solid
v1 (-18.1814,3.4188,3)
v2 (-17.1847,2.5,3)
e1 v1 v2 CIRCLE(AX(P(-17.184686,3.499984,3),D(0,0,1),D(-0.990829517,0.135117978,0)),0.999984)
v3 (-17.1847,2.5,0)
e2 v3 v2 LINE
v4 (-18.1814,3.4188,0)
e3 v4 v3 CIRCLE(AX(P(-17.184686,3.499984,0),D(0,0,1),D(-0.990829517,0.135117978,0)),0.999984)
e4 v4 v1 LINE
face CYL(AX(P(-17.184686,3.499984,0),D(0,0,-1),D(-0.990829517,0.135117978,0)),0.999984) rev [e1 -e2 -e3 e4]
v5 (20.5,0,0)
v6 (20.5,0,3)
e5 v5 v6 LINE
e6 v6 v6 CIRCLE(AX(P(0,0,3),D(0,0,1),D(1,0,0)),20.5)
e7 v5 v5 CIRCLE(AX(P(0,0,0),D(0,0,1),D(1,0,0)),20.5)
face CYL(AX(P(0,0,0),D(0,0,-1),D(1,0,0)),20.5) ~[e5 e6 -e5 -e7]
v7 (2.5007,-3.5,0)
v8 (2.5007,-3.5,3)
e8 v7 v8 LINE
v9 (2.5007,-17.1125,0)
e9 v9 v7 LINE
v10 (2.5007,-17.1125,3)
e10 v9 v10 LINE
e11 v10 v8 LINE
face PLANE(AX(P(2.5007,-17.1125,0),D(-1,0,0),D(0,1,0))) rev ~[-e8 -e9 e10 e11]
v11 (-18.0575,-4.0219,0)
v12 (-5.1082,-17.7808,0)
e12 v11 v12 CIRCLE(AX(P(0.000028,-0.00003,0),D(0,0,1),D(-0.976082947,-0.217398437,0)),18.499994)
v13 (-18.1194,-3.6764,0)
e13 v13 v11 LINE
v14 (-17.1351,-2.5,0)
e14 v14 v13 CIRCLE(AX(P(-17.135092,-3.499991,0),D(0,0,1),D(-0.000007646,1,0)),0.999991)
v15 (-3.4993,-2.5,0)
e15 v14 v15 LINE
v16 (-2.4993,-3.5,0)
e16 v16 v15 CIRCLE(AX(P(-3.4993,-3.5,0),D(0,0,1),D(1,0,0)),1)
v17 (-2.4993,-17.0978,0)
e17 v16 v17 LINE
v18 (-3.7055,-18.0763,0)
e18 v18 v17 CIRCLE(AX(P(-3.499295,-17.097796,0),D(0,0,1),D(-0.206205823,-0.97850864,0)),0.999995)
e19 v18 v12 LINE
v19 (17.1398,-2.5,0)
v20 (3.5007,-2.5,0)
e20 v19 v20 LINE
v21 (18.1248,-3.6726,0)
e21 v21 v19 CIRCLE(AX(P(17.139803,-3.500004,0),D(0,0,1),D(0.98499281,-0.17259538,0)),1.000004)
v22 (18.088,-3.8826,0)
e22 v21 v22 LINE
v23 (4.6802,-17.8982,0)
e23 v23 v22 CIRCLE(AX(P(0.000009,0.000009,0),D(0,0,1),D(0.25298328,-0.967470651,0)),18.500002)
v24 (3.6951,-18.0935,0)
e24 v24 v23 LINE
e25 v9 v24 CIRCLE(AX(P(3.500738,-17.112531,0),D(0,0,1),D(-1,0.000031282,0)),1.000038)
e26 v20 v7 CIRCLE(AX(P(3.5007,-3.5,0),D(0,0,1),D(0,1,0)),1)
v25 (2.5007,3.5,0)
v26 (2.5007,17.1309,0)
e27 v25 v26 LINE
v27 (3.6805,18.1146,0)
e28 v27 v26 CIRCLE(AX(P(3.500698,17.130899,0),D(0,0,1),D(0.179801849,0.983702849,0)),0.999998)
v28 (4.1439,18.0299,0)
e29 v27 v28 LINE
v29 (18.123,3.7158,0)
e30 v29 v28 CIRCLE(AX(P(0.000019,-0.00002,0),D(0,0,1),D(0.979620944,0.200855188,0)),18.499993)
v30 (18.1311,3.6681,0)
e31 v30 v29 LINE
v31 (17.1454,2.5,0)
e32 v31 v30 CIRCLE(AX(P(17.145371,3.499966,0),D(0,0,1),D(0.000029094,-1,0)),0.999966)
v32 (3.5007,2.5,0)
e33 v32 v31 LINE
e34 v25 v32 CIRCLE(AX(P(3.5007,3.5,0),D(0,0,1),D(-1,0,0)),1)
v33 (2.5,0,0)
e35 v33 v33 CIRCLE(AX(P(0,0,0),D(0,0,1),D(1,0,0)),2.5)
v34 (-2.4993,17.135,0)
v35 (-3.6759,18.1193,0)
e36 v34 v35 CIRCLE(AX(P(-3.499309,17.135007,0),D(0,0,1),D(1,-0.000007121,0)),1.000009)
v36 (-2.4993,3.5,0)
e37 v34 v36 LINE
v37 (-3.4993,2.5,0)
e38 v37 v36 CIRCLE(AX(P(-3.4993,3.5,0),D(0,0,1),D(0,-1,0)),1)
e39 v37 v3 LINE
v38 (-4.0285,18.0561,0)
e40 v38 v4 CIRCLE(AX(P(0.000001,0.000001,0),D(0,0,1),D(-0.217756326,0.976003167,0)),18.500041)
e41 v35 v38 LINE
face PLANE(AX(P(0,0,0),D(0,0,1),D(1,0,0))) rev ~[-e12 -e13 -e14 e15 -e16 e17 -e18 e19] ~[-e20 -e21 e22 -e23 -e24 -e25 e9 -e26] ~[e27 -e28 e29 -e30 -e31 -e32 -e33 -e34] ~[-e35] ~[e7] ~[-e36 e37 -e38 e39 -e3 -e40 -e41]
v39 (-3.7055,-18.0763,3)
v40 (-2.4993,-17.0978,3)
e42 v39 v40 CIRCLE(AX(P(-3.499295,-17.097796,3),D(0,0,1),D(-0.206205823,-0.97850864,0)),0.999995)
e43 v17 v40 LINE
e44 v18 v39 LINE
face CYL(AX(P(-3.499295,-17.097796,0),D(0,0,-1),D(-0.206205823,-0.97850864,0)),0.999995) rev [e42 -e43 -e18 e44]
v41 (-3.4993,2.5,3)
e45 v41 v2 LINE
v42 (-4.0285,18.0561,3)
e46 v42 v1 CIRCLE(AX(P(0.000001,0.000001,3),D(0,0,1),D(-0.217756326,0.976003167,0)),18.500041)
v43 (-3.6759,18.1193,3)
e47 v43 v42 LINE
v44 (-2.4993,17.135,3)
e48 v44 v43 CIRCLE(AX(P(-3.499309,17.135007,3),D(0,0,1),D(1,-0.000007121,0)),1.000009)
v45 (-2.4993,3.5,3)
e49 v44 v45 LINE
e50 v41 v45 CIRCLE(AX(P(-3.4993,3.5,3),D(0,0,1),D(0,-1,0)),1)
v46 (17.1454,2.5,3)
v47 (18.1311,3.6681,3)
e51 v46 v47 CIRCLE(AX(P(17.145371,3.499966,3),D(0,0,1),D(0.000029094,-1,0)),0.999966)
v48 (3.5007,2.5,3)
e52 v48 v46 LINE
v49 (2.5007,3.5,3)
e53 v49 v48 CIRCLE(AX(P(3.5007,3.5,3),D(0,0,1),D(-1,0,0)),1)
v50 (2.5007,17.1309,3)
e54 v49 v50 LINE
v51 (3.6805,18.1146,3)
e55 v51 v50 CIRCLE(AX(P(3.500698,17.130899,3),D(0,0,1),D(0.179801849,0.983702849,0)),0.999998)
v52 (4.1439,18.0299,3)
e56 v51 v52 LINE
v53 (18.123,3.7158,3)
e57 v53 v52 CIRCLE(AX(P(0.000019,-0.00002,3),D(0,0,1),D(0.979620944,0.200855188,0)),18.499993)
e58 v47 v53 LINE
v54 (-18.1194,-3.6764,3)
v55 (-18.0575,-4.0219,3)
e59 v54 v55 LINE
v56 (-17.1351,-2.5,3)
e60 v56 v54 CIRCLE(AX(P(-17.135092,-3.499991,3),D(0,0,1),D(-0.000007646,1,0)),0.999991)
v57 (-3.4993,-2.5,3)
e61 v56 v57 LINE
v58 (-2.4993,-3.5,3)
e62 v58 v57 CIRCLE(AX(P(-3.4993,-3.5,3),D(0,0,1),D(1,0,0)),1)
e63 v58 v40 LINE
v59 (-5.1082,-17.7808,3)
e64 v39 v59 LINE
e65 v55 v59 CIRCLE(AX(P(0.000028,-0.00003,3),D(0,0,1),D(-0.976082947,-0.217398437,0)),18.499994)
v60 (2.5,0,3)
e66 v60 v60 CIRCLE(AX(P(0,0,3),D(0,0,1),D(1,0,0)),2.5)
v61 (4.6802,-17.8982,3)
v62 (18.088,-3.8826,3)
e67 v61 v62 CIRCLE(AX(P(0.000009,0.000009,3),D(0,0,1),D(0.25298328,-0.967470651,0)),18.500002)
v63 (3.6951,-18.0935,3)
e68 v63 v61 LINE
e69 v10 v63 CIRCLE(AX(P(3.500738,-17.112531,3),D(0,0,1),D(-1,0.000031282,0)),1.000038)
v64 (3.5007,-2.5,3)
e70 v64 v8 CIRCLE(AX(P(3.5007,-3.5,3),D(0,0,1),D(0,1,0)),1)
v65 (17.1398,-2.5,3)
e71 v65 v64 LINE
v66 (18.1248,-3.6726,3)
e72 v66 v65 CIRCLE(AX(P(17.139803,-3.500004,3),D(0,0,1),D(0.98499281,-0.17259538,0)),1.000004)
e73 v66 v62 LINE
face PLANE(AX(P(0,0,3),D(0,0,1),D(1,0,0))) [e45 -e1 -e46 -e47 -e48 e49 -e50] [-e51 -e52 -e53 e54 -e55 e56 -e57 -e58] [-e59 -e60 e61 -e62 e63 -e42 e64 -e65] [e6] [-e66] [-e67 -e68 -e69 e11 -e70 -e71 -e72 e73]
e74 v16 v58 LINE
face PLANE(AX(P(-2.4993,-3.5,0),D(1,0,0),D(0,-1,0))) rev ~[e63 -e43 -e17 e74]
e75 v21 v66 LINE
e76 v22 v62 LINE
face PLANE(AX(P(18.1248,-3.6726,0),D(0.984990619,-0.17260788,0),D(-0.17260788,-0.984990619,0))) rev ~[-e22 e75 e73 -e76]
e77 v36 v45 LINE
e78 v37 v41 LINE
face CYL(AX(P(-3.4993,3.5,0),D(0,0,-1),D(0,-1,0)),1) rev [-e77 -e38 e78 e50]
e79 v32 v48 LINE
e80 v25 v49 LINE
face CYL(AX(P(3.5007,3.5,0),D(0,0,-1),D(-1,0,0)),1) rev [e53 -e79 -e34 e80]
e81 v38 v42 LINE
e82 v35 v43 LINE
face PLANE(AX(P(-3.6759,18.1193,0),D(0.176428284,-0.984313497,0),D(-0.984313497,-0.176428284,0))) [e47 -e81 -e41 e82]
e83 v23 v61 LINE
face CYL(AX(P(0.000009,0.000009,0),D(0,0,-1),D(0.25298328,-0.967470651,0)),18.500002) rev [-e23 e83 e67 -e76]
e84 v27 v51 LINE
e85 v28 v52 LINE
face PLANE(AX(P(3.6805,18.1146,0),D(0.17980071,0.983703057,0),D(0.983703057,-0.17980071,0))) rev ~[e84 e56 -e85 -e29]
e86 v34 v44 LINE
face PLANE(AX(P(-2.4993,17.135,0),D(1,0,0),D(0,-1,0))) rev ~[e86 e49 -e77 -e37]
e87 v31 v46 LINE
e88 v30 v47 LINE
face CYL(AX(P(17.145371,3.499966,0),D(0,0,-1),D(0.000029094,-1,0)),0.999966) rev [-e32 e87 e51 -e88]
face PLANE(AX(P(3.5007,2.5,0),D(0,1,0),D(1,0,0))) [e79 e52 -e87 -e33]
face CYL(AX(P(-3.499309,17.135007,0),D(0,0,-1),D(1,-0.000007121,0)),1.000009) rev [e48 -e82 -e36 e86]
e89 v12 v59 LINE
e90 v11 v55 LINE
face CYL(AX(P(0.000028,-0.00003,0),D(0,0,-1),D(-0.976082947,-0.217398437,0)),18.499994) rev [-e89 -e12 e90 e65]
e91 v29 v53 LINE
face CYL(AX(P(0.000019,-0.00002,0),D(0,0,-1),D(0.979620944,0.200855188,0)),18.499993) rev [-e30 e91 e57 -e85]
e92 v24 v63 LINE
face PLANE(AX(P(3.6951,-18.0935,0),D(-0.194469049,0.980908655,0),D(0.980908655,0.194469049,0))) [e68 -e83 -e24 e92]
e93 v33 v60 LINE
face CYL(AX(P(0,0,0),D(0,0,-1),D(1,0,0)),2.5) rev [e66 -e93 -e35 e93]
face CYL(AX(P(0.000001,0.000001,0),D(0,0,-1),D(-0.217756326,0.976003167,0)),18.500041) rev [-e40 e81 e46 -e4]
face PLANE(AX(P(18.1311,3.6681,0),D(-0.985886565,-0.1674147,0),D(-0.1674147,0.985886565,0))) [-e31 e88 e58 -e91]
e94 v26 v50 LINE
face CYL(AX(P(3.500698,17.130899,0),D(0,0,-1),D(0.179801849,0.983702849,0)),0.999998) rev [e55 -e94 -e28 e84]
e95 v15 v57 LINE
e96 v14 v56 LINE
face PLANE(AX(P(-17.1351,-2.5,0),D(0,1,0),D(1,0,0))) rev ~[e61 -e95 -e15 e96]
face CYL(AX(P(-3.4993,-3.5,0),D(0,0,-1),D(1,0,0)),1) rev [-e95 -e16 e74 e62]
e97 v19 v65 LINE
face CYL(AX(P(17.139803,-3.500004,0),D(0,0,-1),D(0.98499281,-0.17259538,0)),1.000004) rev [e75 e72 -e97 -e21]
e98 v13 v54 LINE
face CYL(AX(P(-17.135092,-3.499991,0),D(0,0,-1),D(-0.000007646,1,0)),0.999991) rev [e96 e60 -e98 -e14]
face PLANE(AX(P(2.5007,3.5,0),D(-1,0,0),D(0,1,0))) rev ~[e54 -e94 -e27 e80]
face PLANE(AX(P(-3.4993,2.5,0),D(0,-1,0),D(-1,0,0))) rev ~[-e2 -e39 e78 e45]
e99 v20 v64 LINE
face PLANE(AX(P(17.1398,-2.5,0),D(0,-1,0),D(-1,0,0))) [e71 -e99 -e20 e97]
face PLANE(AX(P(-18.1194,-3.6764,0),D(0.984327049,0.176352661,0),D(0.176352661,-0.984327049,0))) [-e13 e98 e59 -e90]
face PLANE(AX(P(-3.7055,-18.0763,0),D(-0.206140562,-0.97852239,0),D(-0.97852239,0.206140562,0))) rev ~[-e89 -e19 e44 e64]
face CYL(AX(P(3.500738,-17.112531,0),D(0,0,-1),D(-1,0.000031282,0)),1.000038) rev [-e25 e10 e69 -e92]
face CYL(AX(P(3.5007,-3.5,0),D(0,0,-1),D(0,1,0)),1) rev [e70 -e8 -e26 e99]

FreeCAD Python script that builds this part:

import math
import FreeCAD as App
import Part
import Sketcher
from FreeCAD import Vector
Q = App.Units.Quantity

doc = App.newDocument("Part")
body = doc.addObject("PartDesign::Body", "Body")

sketch1 = body.newObject("Sketcher::SketchObject", "Sketch")
sketch1.AttachmentSupport = (doc.getObject("XY_Plane"), [""])
sketch1.MapMode = "FlatFace"
sketch1.addGeometry(Part.Circle(Vector(0, 0, 0), Vector(0, 0, 1), 20.5), False)
sketch1.addGeometry(Part.ArcOfCircle(Part.Circle(Vector(-3.4993, -3.5, 0), Vector(0, 0, 1), 1), math.radians(0), math.radians(90)), False)
sketch1.addGeometry(Part.LineSegment(Vector(-2.4993, -3.5, 0), Vector(-2.4993, -17.0978, 0)), False)
sketch1.addGeometry(Part.ArcOfCircle(Part.Circle(Vector(-3.4993, -17.0978, 0), Vector(0, 0, 1), 0.99999), math.radians(-101.899872), math.radians(0)), False)
sketch1.addGeometry(Part.LineSegment(Vector(-3.7055, -18.0763, 0), Vector(-5.1082, -17.7808, 0)), False)
sketch1.addGeometry(Part.ArcOfCircle(Part.Circle(Vector(0, 0, 0), Vector(0, 0, 1), 18.500042), math.radians(-167.443613), math.radians(-106.028692)), False)
sketch1.addGeometry(Part.LineSegment(Vector(-18.0575, -4.0219, 0), Vector(-18.1194, -3.6764, 0)), False)
sketch1.addGeometry(Part.ArcOfCircle(Part.Circle(Vector(-17.1351, -3.5, 0), Vector(0, 0, 1), 1), math.radians(90), math.radians(190.160327)), False)
sketch1.addGeometry(Part.LineSegment(Vector(-17.1351, -2.5, 0), Vector(-3.4993, -2.5, 0)), False)
sketch1.addGeometry(Part.LineSegment(Vector(3.5007, -2.5, 0), Vector(17.1398, -2.5, 0)), False)
sketch1.addGeometry(Part.ArcOfCircle(Part.Circle(Vector(17.1398, -3.5, 0), Vector(0, 0, 1), 1.000008), math.radians(-9.938944), math.radians(90)), False)
sketch1.addGeometry(Part.LineSegment(Vector(18.1248, -3.6726, 0), Vector(18.088, -3.8826, 0)), False)
sketch1.addGeometry(Part.ArcOfCircle(Part.Circle(Vector(0, 0, 0), Vector(0, 0, 1), 18.500042), math.radians(-75.345849), math.radians(-12.114744)), False)
sketch1.addGeometry(Part.LineSegment(Vector(4.6802, -17.8982, 0), Vector(3.6951, -18.0935, 0)), False)
sketch1.addGeometry(Part.ArcOfCircle(Part.Circle(Vector(3.5007, -17.1125, 0), Vector(0, 0, 1), 1), math.radians(180), math.radians(281.20881)), False)
sketch1.addGeometry(Part.LineSegment(Vector(2.5007, -17.1125, 0), Vector(2.5007, -3.5, 0)), False)
sketch1.addGeometry(Part.ArcOfCircle(Part.Circle(Vector(3.5007, -3.5, 0), Vector(0, 0, 1), 1), math.radians(90), math.radians(180)), False)
sketch1.addGeometry(Part.ArcOfCircle(Part.Circle(Vector(-3.4993, 17.135, 0), Vector(0, 0, 1), 1), math.radians(0), math.radians(100.171607)), False)
sketch1.addGeometry(Part.LineSegment(Vector(-2.4993, 17.135, 0), Vector(-2.4993, 3.5, 0)), False)
sketch1.addGeometry(Part.ArcOfCircle(Part.Circle(Vector(-3.4993, 3.5, 0), Vector(0, 0, 1), 1), math.radians(-90), math.radians(0)), False)
sketch1.addGeometry(Part.LineSegment(Vector(-3.4993, 2.5, 0), Vector(-17.1847, 2.5, 0)), False)
sketch1.addGeometry(Part.ArcOfCircle(Part.Circle(Vector(-17.1847, 3.5, 0), Vector(0, 0, 1), 0.999968), math.radians(-175.342465), math.radians(-90)), False)
sketch1.addGeometry(Part.ArcOfCircle(Part.Circle(Vector(0, 0, 0), Vector(0, 0, 1), 18.500042), math.radians(102.577281), math.radians(169.350551)), False)
sketch1.addGeometry(Part.LineSegment(Vector(-4.0285, 18.0561, 0), Vector(-3.6759, 18.1193, 0)), False)
sketch1.addGeometry(Part.Circle(Vector(0, 0, 0), Vector(0, 0, 1), 2.5), False)
sketch1.addGeometry(Part.ArcOfCircle(Part.Circle(Vector(3.5007, 3.5, 0), Vector(0, 0, 1), 1), math.radians(180), math.radians(270)), False)
sketch1.addGeometry(Part.LineSegment(Vector(2.5007, 3.5, 0), Vector(2.5007, 17.1309, 0)), False)
sketch1.addGeometry(Part.ArcOfCircle(Part.Circle(Vector(3.5007, 17.1309, 0), Vector(0, 0, 1), 0.999997), math.radians(79.641857), math.radians(180)), False)
sketch1.addGeometry(Part.LineSegment(Vector(3.6805, 18.1146, 0), Vector(4.1439, 18.0299, 0)), False)
sketch1.addGeometry(Part.ArcOfCircle(Part.Circle(Vector(0, 0, 0), Vector(0, 0, 1), 18.499973), math.radians(11.586901), math.radians(77.056221)), False)
sketch1.addGeometry(Part.LineSegment(Vector(18.123, 3.7158, 0), Vector(18.1311, 3.6681, 0)), False)
sketch1.addGeometry(Part.ArcOfCircle(Part.Circle(Vector(17.1454, 3.5, 0), Vector(0, 0, 1), 1), math.radians(-90), math.radians(9.678041)), False)
sketch1.addGeometry(Part.LineSegment(Vector(17.1454, 2.5, 0), Vector(3.5007, 2.5, 0)), False)
sketch1.addConstraint(Sketcher.Constraint("Coincident", 1, 1, 2, 1))
sketch1.addConstraint(Sketcher.Constraint("Coincident", 2, 2, 3, 2))
sketch1.addConstraint(Sketcher.Constraint("Coincident", 3, 1, 4, 1))
sketch1.addConstraint(Sketcher.Constraint("Coincident", 4, 2, 5, 2))
sketch1.addConstraint(Sketcher.Constraint("Coincident", 5, 1, 6, 1))
sketch1.addConstraint(Sketcher.Constraint("Coincident", 6, 2, 7, 2))
sketch1.addConstraint(Sketcher.Constraint("Coincident", 7, 1, 8, 1))
sketch1.addConstraint(Sketcher.Constraint("Coincident", 8, 2, 1, 2))
sketch1.addConstraint(Sketcher.Constraint("Coincident", 9, 2, 10, 2))
sketch1.addConstraint(Sketcher.Constraint("Coincident", 10, 1, 11, 1))
sketch1.addConstraint(Sketcher.Constraint("Coincident", 11, 2, 12, 2))
sketch1.addConstraint(Sketcher.Constraint("Coincident", 12, 1, 13, 1))
sketch1.addConstraint(Sketcher.Constraint("Coincident", 13, 2, 14, 2))
sketch1.addConstraint(Sketcher.Constraint("Coincident", 14, 1, 15, 1))
sketch1.addConstraint(Sketcher.Constraint("Coincident", 15, 2, 16, 2))
sketch1.addConstraint(Sketcher.Constraint("Coincident", 16, 1, 9, 1))
sketch1.addConstraint(Sketcher.Constraint("Coincident", 17, 1, 18, 1))
sketch1.addConstraint(Sketcher.Constraint("Coincident", 18, 2, 19, 2))
sketch1.addConstraint(Sketcher.Constraint("Coincident", 19, 1, 20, 1))
sketch1.addConstraint(Sketcher.Constraint("Coincident", 20, 2, 21, 2))
sketch1.addConstraint(Sketcher.Constraint("Coincident", 21, 1, 22, 2))
sketch1.addConstraint(Sketcher.Constraint("Coincident", 22, 1, 23, 1))
sketch1.addConstraint(Sketcher.Constraint("Coincident", 23, 2, 17, 2))
sketch1.addConstraint(Sketcher.Constraint("Coincident", 25, 1, 26, 1))
sketch1.addConstraint(Sketcher.Constraint("Coincident", 26, 2, 27, 2))
sketch1.addConstraint(Sketcher.Constraint("Coincident", 27, 1, 28, 1))
sketch1.addConstraint(Sketcher.Constraint("Coincident", 28, 2, 29, 2))
sketch1.addConstraint(Sketcher.Constraint("Coincident", 29, 1, 30, 1))
sketch1.addConstraint(Sketcher.Constraint("Coincident", 30, 2, 31, 2))
sketch1.addConstraint(Sketcher.Constraint("Coincident", 31, 1, 32, 1))
sketch1.addConstraint(Sketcher.Constraint("Coincident", 32, 2, 25, 2))
sketch1.addConstraint(Sketcher.Constraint("Vertical", 2))
sketch1.addConstraint(Sketcher.Constraint("Horizontal", 8))
sketch1.addConstraint(Sketcher.Constraint("Horizontal", 9))
sketch1.addConstraint(Sketcher.Constraint("Vertical", 15))
sketch1.addConstraint(Sketcher.Constraint("Vertical", 18))
sketch1.addConstraint(Sketcher.Constraint("Horizontal", 20))
sketch1.addConstraint(Sketcher.Constraint("Vertical", 26))
sketch1.addConstraint(Sketcher.Constraint("Horizontal", 32))
sketch1.addConstraint(Sketcher.Constraint("Coincident", 0, 3, -1, 1))
sketch1.addConstraint(Sketcher.Constraint("Coincident", 5, 3, -1, 1))
sketch1.addConstraint(Sketcher.Constraint("Coincident", 12, 3, -1, 1))
sketch1.addConstraint(Sketcher.Constraint("Coincident", 22, 3, -1, 1))
sketch1.addConstraint(Sketcher.Constraint("Coincident", 24, 3, -1, 1))
sketch1.addConstraint(Sketcher.Constraint("Coincident", 29, 3, -1, 1))
sketch1.addConstraint(Sketcher.Constraint("Diameter", 0, Q("41 mm")))
sketch1.addConstraint(Sketcher.Constraint("Diameter", 24, Q("5 mm")))
sketch1.addConstraint(Sketcher.Constraint("Radius", 1, Q("1 mm")))
sketch1.addConstraint(Sketcher.Constraint("Radius", 3, Q("1 mm")))
sketch1.addConstraint(Sketcher.Constraint("Radius", 7, Q("1 mm")))
sketch1.addConstraint(Sketcher.Constraint("Radius", 10, Q("1 mm")))
sketch1.addConstraint(Sketcher.Constraint("Radius", 14, Q("1 mm")))
sketch1.addConstraint(Sketcher.Constraint("Radius", 16, Q("1 mm")))
sketch1.addConstraint(Sketcher.Constraint("Radius", 17, Q("1 mm")))
sketch1.addConstraint(Sketcher.Constraint("Radius", 19, Q("1 mm")))
sketch1.addConstraint(Sketcher.Constraint("Radius", 21, Q("1 mm")))
sketch1.addConstraint(Sketcher.Constraint("Radius", 25, Q("1 mm")))
sketch1.addConstraint(Sketcher.Constraint("Radius", 27, Q("1 mm")))
sketch1.addConstraint(Sketcher.Constraint("Radius", 31, Q("1 mm")))
sketch1.addConstraint(Sketcher.Constraint("Radius", 5, Q("18.5 mm")))
sketch1.addConstraint(Sketcher.Constraint("Radius", 12, Q("18.5 mm")))
sketch1.addConstraint(Sketcher.Constraint("Radius", 22, Q("18.5 mm")))
sketch1.addConstraint(Sketcher.Constraint("Radius", 29, Q("18.5 mm")))
sketch1.addConstraint(Sketcher.Constraint("DistanceX", 8, 2, 1, 1, Q("1 mm")))
sketch1.addConstraint(Sketcher.Constraint("DistanceY", 1, 1, 8, 2, Q("1 mm")))
sketch1.addConstraint(Sketcher.Constraint("DistanceX", 2, 2, 14, 1, Q("5 mm")))
sketch1.addConstraint(Sketcher.Constraint("DistanceX", 15, 2, 16, 1, Q("1 mm")))
sketch1.addConstraint(Sketcher.Constraint("DistanceY", 15, 2, 16, 1, Q("1 mm")))
sketch1.addConstraint(Sketcher.Constraint("DistanceX", 19, 1, 18, 2, Q("1 mm")))
sketch1.addConstraint(Sketcher.Constraint("DistanceY", 19, 1, 18, 2, Q("1 mm")))
sketch1.addConstraint(Sketcher.Constraint("DistanceY", 7, 1, 20, 2, Q("5 mm")))
sketch1.addConstraint(Sketcher.Constraint("DistanceX", 17, 1, 26, 2, Q("5 mm")))
sketch1.addConstraint(Sketcher.Constraint("DistanceY", 9, 2, 31, 1, Q("5 mm")))
sketch1.addConstraint(Sketcher.Constraint("DistanceX", 25, 1, 32, 2, Q("1 mm")))
sketch1.addConstraint(Sketcher.Constraint("DistanceY", 32, 2, 25, 1, Q("1 mm")))
sketch1.addConstraint(Sketcher.Constraint("DistanceX", 17, 3, 16, 3, Q("7 mm")))
sketch1.addConstraint(Sketcher.Constraint("DistanceY", 16, 3, 19, 3, Q("7 mm")))
sketch1.addConstraint(Sketcher.Constraint("DistanceY", 1, 3, -1, 1, Q("3.5 mm")))
sketch1.addConstraint(Sketcher.Constraint("DistanceX", 9, 1, 9, 2, Q("13.639 mm")))
sketch1.addConstraint(Sketcher.Constraint("DistanceY", 18, 2, 18, 1, Q("13.635 mm")))
sketch1.addConstraint(Sketcher.Constraint("DistanceY", 26, 1, 26, 2, Q("13.631 mm")))
sketch1.addConstraint(Sketcher.Constraint("DistanceY", -1, 1, 28, 2, Q("18.03 mm")))
sketch1.addConstraint(Sketcher.Constraint("DistanceX", 6, 2, 1, 3, Q("14.62 mm")))
sketch1.addConstraint(Sketcher.Constraint("DistanceY", 11, 2, 10, 1, Q("0.21 mm")))
sketch1.addConstraint(Sketcher.Constraint("Distance", 6, Q("0.351 mm")))
sketch1.addConstraint(Sketcher.Constraint("Distance", 28, Q("0.471 mm")))
sketch1.addConstraint(Sketcher.Constraint("DistanceX", 8, 1, 8, 2, Q("13.6358 mm")))
sketch1.addConstraint(Sketcher.Constraint("DistanceX", 20, 2, 20, 1, Q("13.6854 mm")))
sketch1.addConstraint(Sketcher.Constraint("DistanceX", 32, 2, 32, 1, Q("13.6447 mm")))
sketch1.addConstraint(Sketcher.Constraint("DistanceY", 2, 2, 2, 1, Q("13.5978 mm")))
sketch1.addConstraint(Sketcher.Constraint("DistanceY", 15, 1, 15, 2, Q("13.6125 mm")))
sketch1.addConstraint(Sketcher.Constraint("DistanceX", 7, 3, -1, 1, Q("17.135 mm")))
sketch1.addConstraint(Sketcher.Constraint("DistanceY", -1, 1, 17, 3, Q("17.135 mm")))
sketch1.addConstraint(Sketcher.Constraint("DistanceY", -1, 1, 27, 3, Q("17.131 mm")))
sketch1.addConstraint(Sketcher.Constraint("DistanceY", 5, 1, -1, 1, Q("4.022 mm")))
sketch1.addConstraint(Sketcher.Constraint("DistanceX", -1, 1, 11, 2, Q("18.088 mm")))
sketch1.addConstraint(Sketcher.Constraint("DistanceX", -1, 1, 13, 2, Q("3.695 mm")))
sketch1.addConstraint(Sketcher.Constraint("DistanceY", -1, 1, 22, 1, Q("18.056 mm")))
sketch1.addConstraint(Sketcher.Constraint("DistanceX", 23, 2, -1, 1, Q("3.676 mm")))
sketch1.addConstraint(Sketcher.Constraint("DistanceX", -1, 1, 29, 1, Q("18.123 mm")))
sketch1.addConstraint(Sketcher.Constraint("DistanceX", -1, 1, 30, 2, Q("18.131 mm")))
sketch1.addConstraint(Sketcher.Constraint("DistanceY", -1, 1, 30, 2, Q("3.668 mm")))
sketch1.addConstraint(Sketcher.Constraint("DistanceX", 1, 3, 10, 3, Q("20.639 mm")))
sketch1.addConstraint(Sketcher.Constraint("DistanceX", 4, 2, 3, 3, Q("1.609 mm")))
sketch1.addConstraint(Sketcher.Constraint("DistanceY", 4, 2, 3, 3, Q("0.683 mm")))
sketch1.addConstraint(Sketcher.Constraint("DistanceY", 3, 1, 12, 1, Q("0.178 mm")))
sketch1.addConstraint(Sketcher.Constraint("DistanceX", 13, 2, 12, 1, Q("0.985 mm")))
sketch1.addConstraint(Sketcher.Constraint("DistanceY", 13, 2, 14, 1, Q("0.981 mm")))
sketch1.addConstraint(Sketcher.Constraint("DistanceX", 21, 1, 6, 2, Q("0.062 mm")))
pad1 = body.newObject("PartDesign::Pad", "Pad")
pad1.Profile = sketch1
pad1.Length = 3

doc.recompute()
